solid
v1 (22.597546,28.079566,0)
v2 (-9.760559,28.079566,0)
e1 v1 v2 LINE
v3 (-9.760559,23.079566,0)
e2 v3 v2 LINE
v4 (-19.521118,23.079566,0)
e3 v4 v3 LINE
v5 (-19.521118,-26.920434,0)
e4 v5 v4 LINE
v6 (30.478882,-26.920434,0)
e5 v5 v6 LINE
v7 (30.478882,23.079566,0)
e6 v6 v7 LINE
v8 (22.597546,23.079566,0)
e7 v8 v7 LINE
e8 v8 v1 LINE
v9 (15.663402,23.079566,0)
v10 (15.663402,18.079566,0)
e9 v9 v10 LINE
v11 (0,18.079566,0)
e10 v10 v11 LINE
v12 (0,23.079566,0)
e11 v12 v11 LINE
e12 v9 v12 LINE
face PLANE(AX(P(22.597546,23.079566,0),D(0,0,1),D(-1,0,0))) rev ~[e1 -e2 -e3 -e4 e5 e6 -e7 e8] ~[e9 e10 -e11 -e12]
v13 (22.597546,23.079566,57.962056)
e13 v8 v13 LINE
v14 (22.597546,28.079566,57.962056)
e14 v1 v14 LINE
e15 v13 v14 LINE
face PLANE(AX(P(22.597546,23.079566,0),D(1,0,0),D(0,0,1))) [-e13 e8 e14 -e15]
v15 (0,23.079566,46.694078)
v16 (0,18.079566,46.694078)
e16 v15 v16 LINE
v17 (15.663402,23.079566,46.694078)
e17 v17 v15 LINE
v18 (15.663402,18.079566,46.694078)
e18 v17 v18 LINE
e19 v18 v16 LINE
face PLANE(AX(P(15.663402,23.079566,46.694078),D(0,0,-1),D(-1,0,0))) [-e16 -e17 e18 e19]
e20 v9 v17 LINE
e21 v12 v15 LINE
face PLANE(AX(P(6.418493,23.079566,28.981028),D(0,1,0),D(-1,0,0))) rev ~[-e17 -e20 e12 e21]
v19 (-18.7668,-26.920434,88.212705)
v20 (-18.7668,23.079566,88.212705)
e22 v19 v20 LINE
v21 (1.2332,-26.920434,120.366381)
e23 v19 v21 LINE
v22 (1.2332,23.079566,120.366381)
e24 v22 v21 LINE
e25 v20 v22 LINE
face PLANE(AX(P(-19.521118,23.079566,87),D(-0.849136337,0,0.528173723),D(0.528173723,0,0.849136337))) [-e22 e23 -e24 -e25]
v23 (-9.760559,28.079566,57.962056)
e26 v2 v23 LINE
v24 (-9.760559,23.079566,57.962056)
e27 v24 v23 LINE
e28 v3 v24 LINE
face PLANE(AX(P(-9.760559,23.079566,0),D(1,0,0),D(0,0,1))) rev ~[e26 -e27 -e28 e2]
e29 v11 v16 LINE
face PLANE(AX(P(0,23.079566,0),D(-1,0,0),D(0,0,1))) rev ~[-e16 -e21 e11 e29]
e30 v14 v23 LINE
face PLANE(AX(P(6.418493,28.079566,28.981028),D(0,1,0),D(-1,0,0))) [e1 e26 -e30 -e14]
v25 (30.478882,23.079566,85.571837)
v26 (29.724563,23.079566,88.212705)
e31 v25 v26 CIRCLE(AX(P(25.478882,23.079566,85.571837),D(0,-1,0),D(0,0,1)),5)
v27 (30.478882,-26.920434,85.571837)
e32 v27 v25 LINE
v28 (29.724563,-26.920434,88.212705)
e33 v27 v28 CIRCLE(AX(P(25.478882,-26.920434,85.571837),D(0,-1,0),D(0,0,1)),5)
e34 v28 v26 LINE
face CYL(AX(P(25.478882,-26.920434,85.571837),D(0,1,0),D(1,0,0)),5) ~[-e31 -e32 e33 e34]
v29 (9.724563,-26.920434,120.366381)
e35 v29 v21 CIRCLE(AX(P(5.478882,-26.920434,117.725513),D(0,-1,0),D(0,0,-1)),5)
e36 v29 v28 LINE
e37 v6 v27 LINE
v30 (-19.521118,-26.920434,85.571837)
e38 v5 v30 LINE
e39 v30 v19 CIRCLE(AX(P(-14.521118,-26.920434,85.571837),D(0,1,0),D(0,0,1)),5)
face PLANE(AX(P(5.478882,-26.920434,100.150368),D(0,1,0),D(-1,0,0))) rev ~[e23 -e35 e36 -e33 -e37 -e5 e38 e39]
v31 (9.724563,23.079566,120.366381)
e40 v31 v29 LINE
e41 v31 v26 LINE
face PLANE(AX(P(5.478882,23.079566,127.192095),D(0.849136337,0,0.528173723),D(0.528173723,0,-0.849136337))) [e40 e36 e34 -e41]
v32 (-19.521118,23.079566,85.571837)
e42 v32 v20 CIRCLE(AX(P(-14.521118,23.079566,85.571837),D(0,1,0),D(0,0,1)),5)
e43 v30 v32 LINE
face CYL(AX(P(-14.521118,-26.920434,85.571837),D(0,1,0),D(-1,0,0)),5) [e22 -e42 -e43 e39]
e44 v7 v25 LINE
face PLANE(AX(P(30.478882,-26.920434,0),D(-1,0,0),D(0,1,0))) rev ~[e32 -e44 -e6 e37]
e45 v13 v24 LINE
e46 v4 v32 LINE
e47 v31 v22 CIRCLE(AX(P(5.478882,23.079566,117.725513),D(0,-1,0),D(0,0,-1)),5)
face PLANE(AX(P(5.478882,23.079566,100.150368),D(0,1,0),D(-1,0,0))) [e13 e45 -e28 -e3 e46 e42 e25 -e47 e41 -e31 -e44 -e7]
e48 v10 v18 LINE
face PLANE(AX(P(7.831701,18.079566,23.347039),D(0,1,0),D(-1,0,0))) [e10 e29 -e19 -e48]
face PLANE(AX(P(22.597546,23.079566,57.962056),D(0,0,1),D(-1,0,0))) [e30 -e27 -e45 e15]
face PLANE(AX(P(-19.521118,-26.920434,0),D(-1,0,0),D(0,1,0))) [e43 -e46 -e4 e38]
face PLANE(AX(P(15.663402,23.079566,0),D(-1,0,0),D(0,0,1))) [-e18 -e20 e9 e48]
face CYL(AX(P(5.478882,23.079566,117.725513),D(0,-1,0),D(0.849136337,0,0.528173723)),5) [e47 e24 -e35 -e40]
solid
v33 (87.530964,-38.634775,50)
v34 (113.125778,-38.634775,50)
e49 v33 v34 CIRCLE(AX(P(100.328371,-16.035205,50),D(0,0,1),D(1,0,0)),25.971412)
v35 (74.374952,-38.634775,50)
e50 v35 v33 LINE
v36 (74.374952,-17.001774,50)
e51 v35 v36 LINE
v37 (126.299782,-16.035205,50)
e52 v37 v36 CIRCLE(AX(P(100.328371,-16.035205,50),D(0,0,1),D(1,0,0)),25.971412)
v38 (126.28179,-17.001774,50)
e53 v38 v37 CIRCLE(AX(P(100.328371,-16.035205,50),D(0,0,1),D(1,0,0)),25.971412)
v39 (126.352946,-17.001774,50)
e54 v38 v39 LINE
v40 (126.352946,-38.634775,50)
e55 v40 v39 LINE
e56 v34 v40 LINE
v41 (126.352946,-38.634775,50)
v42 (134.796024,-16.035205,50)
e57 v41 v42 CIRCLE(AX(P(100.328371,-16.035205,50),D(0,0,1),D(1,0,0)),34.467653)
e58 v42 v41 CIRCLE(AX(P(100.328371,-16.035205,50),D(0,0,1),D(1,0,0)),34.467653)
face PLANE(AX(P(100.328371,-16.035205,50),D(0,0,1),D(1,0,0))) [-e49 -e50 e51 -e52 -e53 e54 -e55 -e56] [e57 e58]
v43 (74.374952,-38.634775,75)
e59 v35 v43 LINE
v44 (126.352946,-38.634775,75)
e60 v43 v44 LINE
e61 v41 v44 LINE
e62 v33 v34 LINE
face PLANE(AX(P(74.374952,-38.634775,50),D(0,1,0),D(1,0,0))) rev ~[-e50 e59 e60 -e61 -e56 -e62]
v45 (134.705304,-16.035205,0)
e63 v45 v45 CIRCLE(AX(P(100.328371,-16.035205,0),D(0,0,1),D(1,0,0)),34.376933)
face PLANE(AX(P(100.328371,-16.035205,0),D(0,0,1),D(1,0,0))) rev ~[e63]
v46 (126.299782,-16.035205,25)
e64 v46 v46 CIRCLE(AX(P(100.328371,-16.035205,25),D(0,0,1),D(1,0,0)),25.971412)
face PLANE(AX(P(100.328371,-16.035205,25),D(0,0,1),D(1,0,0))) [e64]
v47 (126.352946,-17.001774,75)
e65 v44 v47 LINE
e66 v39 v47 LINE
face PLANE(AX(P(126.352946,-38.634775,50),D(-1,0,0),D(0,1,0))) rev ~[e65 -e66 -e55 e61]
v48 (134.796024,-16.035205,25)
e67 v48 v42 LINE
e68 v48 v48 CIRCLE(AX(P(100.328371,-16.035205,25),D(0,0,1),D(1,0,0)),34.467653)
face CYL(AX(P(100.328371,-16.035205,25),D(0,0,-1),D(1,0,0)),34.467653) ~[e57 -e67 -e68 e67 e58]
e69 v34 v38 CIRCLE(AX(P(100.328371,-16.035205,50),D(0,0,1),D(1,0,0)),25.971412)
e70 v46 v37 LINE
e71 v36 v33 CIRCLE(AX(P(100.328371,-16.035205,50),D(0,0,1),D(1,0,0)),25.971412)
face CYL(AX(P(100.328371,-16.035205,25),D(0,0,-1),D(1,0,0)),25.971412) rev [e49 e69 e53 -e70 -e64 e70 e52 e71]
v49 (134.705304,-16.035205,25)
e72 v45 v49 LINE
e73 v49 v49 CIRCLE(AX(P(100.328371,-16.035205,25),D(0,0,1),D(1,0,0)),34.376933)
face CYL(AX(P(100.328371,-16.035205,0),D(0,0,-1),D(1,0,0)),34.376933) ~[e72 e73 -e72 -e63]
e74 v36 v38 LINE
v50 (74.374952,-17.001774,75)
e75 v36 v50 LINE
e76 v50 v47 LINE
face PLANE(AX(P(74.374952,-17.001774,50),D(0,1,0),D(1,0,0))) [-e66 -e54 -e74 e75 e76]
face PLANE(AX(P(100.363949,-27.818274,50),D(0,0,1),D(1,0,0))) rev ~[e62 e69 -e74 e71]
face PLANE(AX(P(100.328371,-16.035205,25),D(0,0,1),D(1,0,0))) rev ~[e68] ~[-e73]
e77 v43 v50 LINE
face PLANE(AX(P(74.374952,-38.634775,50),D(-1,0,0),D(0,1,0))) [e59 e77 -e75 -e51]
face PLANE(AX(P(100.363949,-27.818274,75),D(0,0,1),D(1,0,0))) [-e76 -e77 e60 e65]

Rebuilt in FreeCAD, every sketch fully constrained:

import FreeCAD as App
import Part
import Sketcher

V = App.Vector


def edges_at(feature, points):
    """Names of the edges that pass closest to the given points."""
    edges = feature.Shape.Edges
    near = lambda p: min(range(len(edges)), key=lambda i: edges[i].distToShape(Part.Vertex(*p))[0])
    return sorted({f"Edge{near(p) + 1}" for p in points})


def add_polygon(sketch, points):
    """Adds a closed chain of lines whose ends are joined by coincident constraints."""
    first, n = sketch.GeometryCount, len(points)
    for a, b in zip(points, points[1:] + points[:1]):
        sketch.addGeometry(Part.LineSegment(App.Vector(*a, 0), App.Vector(*b, 0)), False)
    for i in range(n):
        sketch.addConstraint(Sketcher.Constraint("Coincident", first + i, 2, first + (i + 1) % n, 1))

doc = App.newDocument("Part")
body = doc.addObject("PartDesign::Body", "Body")

# Sketch on XY plane
sketch1 = body.newObject("Sketcher::SketchObject", "Sketch")
sketch1.AttachmentSupport = (doc.getObject("XY_Plane"), [""])
sketch1.MapMode = "FlatFace"
add_polygon(sketch1, [(-20, 23), (-20, -27), (30, -27), (30, 23)])  # lines 0-3
sketch1.addConstraint([
    Sketcher.Constraint("Vertical", 0),
    Sketcher.Constraint("Horizontal", 1),
    Sketcher.Constraint("Vertical", 2),
    Sketcher.Constraint("Horizontal", 3),
    Sketcher.Constraint("Equal", 3, 0),
    Sketcher.Constraint("DistanceX", 1, 1, 1, 2, 50.0),
    Sketcher.Constraint("DistanceX", 0, 2, -1, 1, 19.521118),
    Sketcher.Constraint("DistanceY", 0, 2, -1, 1, 26.920434),
])
pad1 = body.newObject("PartDesign::Pad", "Pad")
pad1.Profile = sketch1
pad1.Length = 87

# Sketch on XZ plane
sketch2 = body.newObject("Sketcher::SketchObject", "Sketch001")
sketch2.AttachmentSupport = (doc.getObject("XZ_Plane"), [""])
sketch2.MapMode = "FlatFace"
sketch2.AttachmentOffset = App.Placement(V(0, 0, -23.079566), App.Rotation())
add_polygon(sketch2, [(5, 127), (30, 87), (-20, 87)])  # lines 0-2
sketch2.addConstraint([
    Sketcher.Constraint("Horizontal", 1),
    Sketcher.Constraint("Equal", 0, 2),
    Sketcher.Constraint("DistanceX", 1, 2, 1, 1, 50.0),
    Sketcher.Constraint("DistanceY", -1, 1, 0, 2, 87.0),
    Sketcher.Constraint("Distance", 0, 47.332911),
    Sketcher.Constraint("DistanceX", -1, 1, 0, 2, 30.478882),
])
pad2 = body.newObject("PartDesign::Pad", "Pad001")
pad2.Profile = sketch2
pad2.Length = 50

# Sketch on XZ plane
sketch3 = body.newObject("Sketcher::SketchObject", "Sketch002")
sketch3.AttachmentSupport = (doc.getObject("XZ_Plane"), [""])
sketch3.MapMode = "FlatFace"
sketch3.AttachmentOffset = App.Placement(V(0, 0, -23.079566), App.Rotation())
add_polygon(sketch3, [(16, 47), (16, 0), (0, 0), (0, 47)])  # lines 0-3
sketch3.addConstraint([
    Sketcher.Constraint("Vertical", 0),
    Sketcher.Constraint("Horizontal", 1),
    Sketcher.Constraint("Vertical", 2),
    Sketcher.Constraint("Horizontal", 3),
    Sketcher.Constraint("Coincident", 1, 2, -1, 1),
    Sketcher.Constraint("DistanceX", 1, 2, 1, 1, 15.663402),
    Sketcher.Constraint("DistanceY", 0, 2, 0, 1, 46.694078),
])
pocket1 = body.newObject("PartDesign::Pocket", "Pocket")
pocket1.Profile = sketch3
pocket1.Length = 5
pocket1.Reversed = True

# Sketch on XZ plane
sketch4 = body.newObject("Sketcher::SketchObject", "Sketch003")
sketch4.AttachmentSupport = (doc.getObject("XZ_Plane"), [""])
sketch4.MapMode = "FlatFace"
sketch4.AttachmentOffset = App.Placement(V(0, 0, -23.079566), App.Rotation())
add_polygon(sketch4, [(23, 58), (23, 0), (-10, 0), (-10, 58)])  # lines 0-3
sketch4.addConstraint([
    Sketcher.Constraint("Vertical", 0),
    Sketcher.Constraint("Horizontal", 1),
    Sketcher.Constraint("Vertical", 2),
    Sketcher.Constraint("Horizontal", 3),
    Sketcher.Constraint("PointOnObject", 0, 2, -1),
    Sketcher.Constraint("DistanceX", 1, 2, 1, 1, 32.358105),
    Sketcher.Constraint("DistanceY", 0, 2, 0, 1, 57.962056),
    Sketcher.Constraint("DistanceX", 1, 2, -1, 1, 9.760559),
])
pad3 = body.newObject("PartDesign::Pad", "Pad002")
pad3.Profile = sketch4
pad3.Length = 5
pad3.Reversed = True
doc.recompute()

fillet = body.newObject("PartDesign::Fillet", "Fillet")
fillet.Base = (pad3, edges_at(pad3, [(5.479, -1.92, 127.192), (30.479, -1.92, 87), (-19.521, -1.92, 87)]))
fillet.Radius = 5
body2 = doc.addObject("PartDesign::Body", "Body001")

# Sketch on XY plane
sketch5 = body2.newObject("Sketcher::SketchObject", "Sketch004")
sketch5.AttachmentSupport = (doc.getObject("XY_Plane001"), [""])
sketch5.MapMode = "FlatFace"
sketch5.addGeometry(Part.Circle(V(100, -16, 0), V(0, 0, 1), 34), False)
sketch5.addConstraint([
    Sketcher.Constraint("Diameter", 0, 68.753866),
    Sketcher.Constraint("DistanceX", -1, 1, 0, 3, 100.328371),
    Sketcher.Constraint("DistanceY", 0, 3, -1, 1, 16.035205),
])
pad4 = body2.newObject("PartDesign::Pad", "Pad003")
pad4.Profile = sketch5
pad4.Length = 25

# Sketch on XY plane
sketch6 = body2.newObject("Sketcher::SketchObject", "Sketch005")
sketch6.AttachmentSupport = (doc.getObject("XY_Plane001"), [""])
sketch6.MapMode = "FlatFace"
sketch6.AttachmentOffset = App.Placement(V(0, 0, 25), App.Rotation())
sketch6.addGeometry([
    Part.Circle(V(100, -16, 0), V(0, 0, 1), 34),
    Part.Circle(V(100, -16, 0), V(0, 0, 1), 26),
], False)
sketch6.addConstraint([
    Sketcher.Constraint("Coincident", 1, 3, 0, 3),
    Sketcher.Constraint("Diameter", 0, 68.935305),
    Sketcher.Constraint("Diameter", 1, 51.942823),
    Sketcher.Constraint("DistanceX", -1, 1, 0, 3, 100.328371),
    Sketcher.Constraint("DistanceY", 0, 3, -1, 1, 16.035205),
])
pad5 = body2.newObject("PartDesign::Pad", "Pad004")
pad5.Profile = sketch6
pad5.Length = 25

# Sketch on XY plane
sketch7 = body2.newObject("Sketcher::SketchObject", "Sketch006")
sketch7.AttachmentSupport = (doc.getObject("XY_Plane001"), [""])
sketch7.MapMode = "FlatFace"
sketch7.AttachmentOffset = App.Placement(V(0, 0, 50), App.Rotation())
add_polygon(sketch7, [(74, -17), (74, -39), (126, -39), (126, -17)])  # lines 0-3
sketch7.addConstraint([
    Sketcher.Constraint("Vertical", 0),
    Sketcher.Constraint("Horizontal", 1),
    Sketcher.Constraint("Vertical", 2),
    Sketcher.Constraint("Horizontal", 3),
    Sketcher.Constraint("DistanceY", 0, 2, 0, 1, 21.633002),
    Sketcher.Constraint("DistanceX", 1, 1, 1, 2, 51.977994),
    Sketcher.Constraint("DistanceX", -1, 1, 0, 2, 74.374952),
    Sketcher.Constraint("DistanceY", 0, 2, -1, 1, 38.634775),
])
pad6 = body2.newObject("PartDesign::Pad", "Pad005")
pad6.Profile = sketch7
pad6.Length = 25

doc.recompute()
